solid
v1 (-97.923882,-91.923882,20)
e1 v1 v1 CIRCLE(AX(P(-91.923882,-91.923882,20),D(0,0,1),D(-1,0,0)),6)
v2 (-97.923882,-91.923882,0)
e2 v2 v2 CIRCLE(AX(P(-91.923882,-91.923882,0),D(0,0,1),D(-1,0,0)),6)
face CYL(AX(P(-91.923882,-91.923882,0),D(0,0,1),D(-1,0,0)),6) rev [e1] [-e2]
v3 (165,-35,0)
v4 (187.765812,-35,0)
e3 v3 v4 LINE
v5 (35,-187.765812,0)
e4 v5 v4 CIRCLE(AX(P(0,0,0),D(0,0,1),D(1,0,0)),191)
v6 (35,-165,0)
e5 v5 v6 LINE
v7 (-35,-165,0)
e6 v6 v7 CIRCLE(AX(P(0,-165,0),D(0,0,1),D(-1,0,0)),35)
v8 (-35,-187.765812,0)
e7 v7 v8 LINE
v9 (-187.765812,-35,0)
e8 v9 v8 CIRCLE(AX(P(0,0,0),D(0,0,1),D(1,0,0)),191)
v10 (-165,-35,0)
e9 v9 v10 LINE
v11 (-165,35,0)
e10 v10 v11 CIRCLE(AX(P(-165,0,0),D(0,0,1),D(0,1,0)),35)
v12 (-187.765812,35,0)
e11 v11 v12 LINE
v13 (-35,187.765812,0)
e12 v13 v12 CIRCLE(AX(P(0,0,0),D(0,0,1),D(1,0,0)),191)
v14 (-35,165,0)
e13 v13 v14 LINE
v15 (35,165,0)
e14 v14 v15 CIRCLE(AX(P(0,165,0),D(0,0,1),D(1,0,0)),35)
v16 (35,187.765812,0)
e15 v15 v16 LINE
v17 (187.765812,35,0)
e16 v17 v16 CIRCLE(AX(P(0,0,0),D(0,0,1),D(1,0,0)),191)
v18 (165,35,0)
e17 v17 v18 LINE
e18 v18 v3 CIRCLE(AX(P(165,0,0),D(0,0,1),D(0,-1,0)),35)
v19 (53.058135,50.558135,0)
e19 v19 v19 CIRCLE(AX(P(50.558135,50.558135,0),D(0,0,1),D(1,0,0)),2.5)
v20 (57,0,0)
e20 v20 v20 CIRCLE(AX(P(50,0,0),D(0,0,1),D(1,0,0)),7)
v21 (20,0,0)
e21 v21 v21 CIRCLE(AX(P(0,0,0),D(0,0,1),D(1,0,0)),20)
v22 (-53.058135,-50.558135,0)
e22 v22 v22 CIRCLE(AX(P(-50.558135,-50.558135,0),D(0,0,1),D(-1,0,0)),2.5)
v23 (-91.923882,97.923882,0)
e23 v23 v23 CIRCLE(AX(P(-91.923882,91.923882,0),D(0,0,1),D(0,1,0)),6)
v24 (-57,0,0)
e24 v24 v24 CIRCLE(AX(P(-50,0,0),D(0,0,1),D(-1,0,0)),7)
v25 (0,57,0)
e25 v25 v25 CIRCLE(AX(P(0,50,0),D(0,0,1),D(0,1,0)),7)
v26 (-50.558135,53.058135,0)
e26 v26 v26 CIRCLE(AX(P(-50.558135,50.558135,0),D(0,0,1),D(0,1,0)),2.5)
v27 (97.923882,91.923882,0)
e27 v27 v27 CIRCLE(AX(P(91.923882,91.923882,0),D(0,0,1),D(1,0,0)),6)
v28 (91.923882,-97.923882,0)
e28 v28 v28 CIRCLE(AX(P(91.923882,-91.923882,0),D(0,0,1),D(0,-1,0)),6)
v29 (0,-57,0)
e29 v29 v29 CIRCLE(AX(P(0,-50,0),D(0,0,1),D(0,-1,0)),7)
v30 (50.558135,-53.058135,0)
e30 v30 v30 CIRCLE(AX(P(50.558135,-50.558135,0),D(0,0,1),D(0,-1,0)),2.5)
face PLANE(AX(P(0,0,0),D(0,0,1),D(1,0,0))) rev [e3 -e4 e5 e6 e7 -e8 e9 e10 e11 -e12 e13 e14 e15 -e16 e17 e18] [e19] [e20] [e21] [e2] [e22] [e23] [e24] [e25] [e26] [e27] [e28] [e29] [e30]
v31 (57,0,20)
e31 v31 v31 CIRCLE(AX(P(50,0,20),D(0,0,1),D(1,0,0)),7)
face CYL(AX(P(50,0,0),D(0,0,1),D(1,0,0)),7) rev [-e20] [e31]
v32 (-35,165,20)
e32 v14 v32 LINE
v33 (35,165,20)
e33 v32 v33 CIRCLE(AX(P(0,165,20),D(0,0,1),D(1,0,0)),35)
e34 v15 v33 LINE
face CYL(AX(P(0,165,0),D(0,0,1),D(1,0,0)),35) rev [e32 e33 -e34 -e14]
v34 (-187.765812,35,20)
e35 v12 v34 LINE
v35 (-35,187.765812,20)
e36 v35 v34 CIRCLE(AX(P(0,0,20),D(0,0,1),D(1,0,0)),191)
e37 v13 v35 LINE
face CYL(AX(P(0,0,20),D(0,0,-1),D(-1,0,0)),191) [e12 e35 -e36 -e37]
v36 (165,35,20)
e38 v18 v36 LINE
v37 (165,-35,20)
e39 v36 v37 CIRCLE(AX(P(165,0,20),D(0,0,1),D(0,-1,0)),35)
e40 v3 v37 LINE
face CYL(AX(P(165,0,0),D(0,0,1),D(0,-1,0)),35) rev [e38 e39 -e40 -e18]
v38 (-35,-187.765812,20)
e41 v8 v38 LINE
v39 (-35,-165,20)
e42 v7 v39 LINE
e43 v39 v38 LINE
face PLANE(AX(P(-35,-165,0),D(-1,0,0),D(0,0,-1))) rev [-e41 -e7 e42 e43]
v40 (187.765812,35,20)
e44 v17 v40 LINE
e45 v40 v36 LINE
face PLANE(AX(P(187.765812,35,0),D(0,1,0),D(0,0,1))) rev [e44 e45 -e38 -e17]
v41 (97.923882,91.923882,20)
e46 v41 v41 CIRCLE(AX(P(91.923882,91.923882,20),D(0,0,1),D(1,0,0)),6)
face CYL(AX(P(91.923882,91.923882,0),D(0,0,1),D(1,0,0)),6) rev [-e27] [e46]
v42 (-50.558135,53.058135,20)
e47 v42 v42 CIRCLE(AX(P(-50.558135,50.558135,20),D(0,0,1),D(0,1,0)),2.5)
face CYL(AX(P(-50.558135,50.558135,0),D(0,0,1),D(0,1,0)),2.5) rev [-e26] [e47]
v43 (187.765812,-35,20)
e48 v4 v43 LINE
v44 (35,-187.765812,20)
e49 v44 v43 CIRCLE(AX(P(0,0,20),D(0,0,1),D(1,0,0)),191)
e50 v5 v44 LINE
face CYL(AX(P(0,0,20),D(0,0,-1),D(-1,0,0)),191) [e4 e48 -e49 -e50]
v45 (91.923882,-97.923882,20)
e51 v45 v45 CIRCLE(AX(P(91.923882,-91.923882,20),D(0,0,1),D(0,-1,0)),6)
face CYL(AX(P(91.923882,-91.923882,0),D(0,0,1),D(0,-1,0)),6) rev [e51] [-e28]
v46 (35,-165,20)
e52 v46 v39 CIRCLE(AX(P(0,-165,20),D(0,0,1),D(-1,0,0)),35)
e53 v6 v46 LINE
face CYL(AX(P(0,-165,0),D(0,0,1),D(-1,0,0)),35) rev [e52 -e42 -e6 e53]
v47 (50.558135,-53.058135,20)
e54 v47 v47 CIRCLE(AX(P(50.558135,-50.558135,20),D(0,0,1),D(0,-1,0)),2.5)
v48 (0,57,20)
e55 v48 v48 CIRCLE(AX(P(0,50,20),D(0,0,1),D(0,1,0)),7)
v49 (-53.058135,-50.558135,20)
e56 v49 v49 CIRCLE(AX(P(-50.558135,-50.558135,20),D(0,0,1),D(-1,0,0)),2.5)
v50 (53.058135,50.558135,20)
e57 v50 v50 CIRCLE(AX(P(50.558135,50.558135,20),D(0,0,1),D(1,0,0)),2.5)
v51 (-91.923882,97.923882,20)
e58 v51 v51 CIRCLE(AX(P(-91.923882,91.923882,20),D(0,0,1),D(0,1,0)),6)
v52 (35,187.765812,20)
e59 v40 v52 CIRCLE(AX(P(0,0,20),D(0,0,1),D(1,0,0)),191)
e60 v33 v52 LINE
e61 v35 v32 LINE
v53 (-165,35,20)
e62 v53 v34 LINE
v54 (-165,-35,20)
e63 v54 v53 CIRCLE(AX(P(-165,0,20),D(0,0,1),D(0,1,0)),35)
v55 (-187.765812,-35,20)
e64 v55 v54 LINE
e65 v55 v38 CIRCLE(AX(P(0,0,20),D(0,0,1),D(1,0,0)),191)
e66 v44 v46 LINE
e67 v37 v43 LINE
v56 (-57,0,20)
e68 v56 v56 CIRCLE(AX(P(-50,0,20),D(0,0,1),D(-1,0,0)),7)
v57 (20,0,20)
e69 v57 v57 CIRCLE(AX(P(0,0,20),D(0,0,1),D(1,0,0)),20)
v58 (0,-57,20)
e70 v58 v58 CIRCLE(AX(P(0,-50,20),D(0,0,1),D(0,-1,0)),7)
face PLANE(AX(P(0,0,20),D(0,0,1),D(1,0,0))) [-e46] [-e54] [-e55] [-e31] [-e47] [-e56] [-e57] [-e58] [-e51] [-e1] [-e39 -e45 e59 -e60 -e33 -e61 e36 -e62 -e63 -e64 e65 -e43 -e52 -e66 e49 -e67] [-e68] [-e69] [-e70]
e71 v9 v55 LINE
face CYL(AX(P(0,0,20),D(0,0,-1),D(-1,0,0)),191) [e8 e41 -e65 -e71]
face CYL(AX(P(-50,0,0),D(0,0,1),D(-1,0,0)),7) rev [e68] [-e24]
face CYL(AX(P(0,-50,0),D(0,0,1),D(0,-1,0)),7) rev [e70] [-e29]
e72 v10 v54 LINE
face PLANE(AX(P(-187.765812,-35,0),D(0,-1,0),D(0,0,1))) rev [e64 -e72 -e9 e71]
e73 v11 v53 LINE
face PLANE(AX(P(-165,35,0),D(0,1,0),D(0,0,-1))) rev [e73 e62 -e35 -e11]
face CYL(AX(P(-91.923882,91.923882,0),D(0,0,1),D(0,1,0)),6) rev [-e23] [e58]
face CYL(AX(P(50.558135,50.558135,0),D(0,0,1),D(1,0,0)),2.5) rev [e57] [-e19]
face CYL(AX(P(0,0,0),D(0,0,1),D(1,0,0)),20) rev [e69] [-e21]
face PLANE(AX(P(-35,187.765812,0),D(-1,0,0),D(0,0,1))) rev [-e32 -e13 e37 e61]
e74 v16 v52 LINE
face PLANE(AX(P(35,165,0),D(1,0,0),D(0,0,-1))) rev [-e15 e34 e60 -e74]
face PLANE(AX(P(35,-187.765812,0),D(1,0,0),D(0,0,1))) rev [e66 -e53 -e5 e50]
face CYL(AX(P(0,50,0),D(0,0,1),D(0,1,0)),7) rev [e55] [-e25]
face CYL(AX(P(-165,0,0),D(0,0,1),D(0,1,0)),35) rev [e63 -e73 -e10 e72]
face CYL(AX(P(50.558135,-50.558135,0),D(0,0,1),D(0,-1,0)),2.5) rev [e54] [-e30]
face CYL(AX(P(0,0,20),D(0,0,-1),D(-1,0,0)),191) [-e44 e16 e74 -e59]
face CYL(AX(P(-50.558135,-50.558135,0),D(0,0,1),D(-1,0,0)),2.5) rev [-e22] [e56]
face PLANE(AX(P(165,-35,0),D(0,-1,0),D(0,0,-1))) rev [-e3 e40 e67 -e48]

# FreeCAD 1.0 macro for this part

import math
import FreeCAD as App
import Part
import Sketcher

V = App.Vector

doc = App.newDocument("Part")
body = doc.addObject("PartDesign::Body", "Body")

sketch1 = doc.addObject("Sketcher::SketchObject", "Sketch")
body.addObject(sketch1)
sketch1.AttachmentSupport = (doc.XY_Plane, [""])
sketch1.MapMode = "FlatFace"
sketch1.addGeometry(Part.Circle(V(0, 0, 0), V(0, 0, 1), 191), False)
sketch1.addConstraint(Sketcher.Constraint("Coincident", 0, 3, -1, 1))
sketch1.addConstraint(Sketcher.Constraint("Diameter", 0, 382.0))
pad1 = doc.addObject("PartDesign::Pad", "Pad")
body.addObject(pad1)
pad1.Profile = sketch1
pad1.Length = 20

sketch2 = doc.addObject("Sketcher::SketchObject", "Sketch001")
body.addObject(sketch2)
sketch2.AttachmentSupport = (doc.XY_Plane, [""])
sketch2.MapMode = "FlatFace"
sketch2.AttachmentOffset = App.Placement(V(0, 0, 20), App.Rotation())
sketch2.addGeometry(Part.Circle(V(0, 0, 0), V(0, 0, 1), 20), False)
sketch2.addConstraint(Sketcher.Constraint("Coincident", 0, 3, -1, 1))
sketch2.addConstraint(Sketcher.Constraint("Diameter", 0, 40.0))
pocket1 = doc.addObject("PartDesign::Pocket", "Pocket")
body.addObject(pocket1)
pocket1.Profile = sketch2
pocket1.Length = 20

sketch3 = doc.addObject("Sketcher::SketchObject", "Sketch002")
body.addObject(sketch3)
sketch3.AttachmentSupport = (doc.XY_Plane, [""])
sketch3.MapMode = "FlatFace"
sketch3.AttachmentOffset = App.Placement(V(0, 0, 20), App.Rotation())
sketch3.addGeometry(Part.Circle(V(50, 0, 0), V(0, 0, 1), 7), False)
sketch3.addConstraint(Sketcher.Constraint("PointOnObject", 0, 3, -1))
sketch3.addConstraint(Sketcher.Constraint("Diameter", 0, 14.0))
sketch3.addConstraint(Sketcher.Constraint("DistanceX", -1, 1, 0, 3, 50.0))
pocket2 = doc.addObject("PartDesign::Pocket", "Pocket001")
body.addObject(pocket2)
pocket2.Profile = sketch3
pocket2.Length = 20
doc.recompute()

polarpattern = doc.addObject("PartDesign::PolarPattern", "PolarPattern")
body.addObject(polarpattern)
polarpattern.Originals = [pocket2]
polarpattern.Axis = (doc.Z_Axis, [""])
polarpattern.Angle = 360
polarpattern.Occurrences = 4
body.Tip = polarpattern

sketch4 = doc.addObject("Sketcher::SketchObject", "Sketch003")
body.addObject(sketch4)
sketch4.AttachmentSupport = (doc.XY_Plane, [""])
sketch4.MapMode = "FlatFace"
sketch4.AttachmentOffset = App.Placement(V(0, 0, 20), App.Rotation())
sketch4.addGeometry(Part.Circle(V(91.9, 91.9, 0), V(0, 0, 1), 6), False)
sketch4.addGeometry(Part.Circle(V(50.6, 50.6, 0), V(0, 0, 1), 2.5), False)
sketch4.addConstraint(Sketcher.Constraint("Diameter", 0, 12.0))
sketch4.addConstraint(Sketcher.Constraint("Diameter", 1, 5.0))
sketch4.addConstraint(Sketcher.Constraint("DistanceX", -1, 1, 0, 3, 91.923882))
sketch4.addConstraint(Sketcher.Constraint("DistanceY", -1, 1, 0, 3, 91.923882))
sketch4.addConstraint(Sketcher.Constraint("DistanceX", -1, 1, 1, 3, 50.558135))
sketch4.addConstraint(Sketcher.Constraint("DistanceY", -1, 1, 1, 3, 50.558135))
pocket3 = doc.addObject("PartDesign::Pocket", "Pocket002")
body.addObject(pocket3)
pocket3.Profile = sketch4
pocket3.Length = 20
doc.recompute()

polarpattern2 = doc.addObject("PartDesign::PolarPattern", "PolarPattern001")
body.addObject(polarpattern2)
polarpattern2.Originals = [pocket3]
polarpattern2.Axis = (doc.Z_Axis, [""])
polarpattern2.Angle = 360
polarpattern2.Occurrences = 4
body.Tip = polarpattern2

sketch5 = doc.addObject("Sketcher::SketchObject", "Sketch004")
body.addObject(sketch5)
sketch5.AttachmentSupport = (doc.XY_Plane, [""])
sketch5.MapMode = "FlatFace"
sketch5.AttachmentOffset = App.Placement(V(0, 0, 20), App.Rotation())
sketch5.addGeometry(Part.LineSegment(V(-35, 188, 0), V(-35, 165, 0)), False)
sketch5.addGeometry(Part.ArcOfCircle(Part.Circle(V(0, 165, 0), V(0, 0, 1), 35), math.radians(180), math.radians(360)), False)
sketch5.addGeometry(Part.LineSegment(V(35, 165, 0), V(35, 188, 0)), False)
sketch5.addGeometry(Part.ArcOfCircle(Part.Circle(V(0, 0, 0), V(0, 0, 1), 191), math.radians(79), math.radians(101)), False)
sketch5.addConstraint(Sketcher.Constraint("Tangent", 0, 2, 1, 1))
sketch5.addConstraint(Sketcher.Constraint("Tangent", 1, 2, 2, 1))
sketch5.addConstraint(Sketcher.Constraint("Coincident", 2, 2, 3, 1))
sketch5.addConstraint(Sketcher.Constraint("Coincident", 3, 2, 0, 1))
sketch5.addConstraint(Sketcher.Constraint("Vertical", 0))
sketch5.addConstraint(Sketcher.Constraint("Vertical", 2))
sketch5.addConstraint(Sketcher.Constraint("Coincident", 3, 3, -1, 1))
sketch5.addConstraint(Sketcher.Constraint("PointOnObject", 1, 3, -2))
sketch5.addConstraint(Sketcher.Constraint("Radius", 1, 35.0))
sketch5.addConstraint(Sketcher.Constraint("Radius", 3, 191.0))
sketch5.addConstraint(Sketcher.Constraint("DistanceY", -1, 1, 1, 3, 165.0))
pocket4 = doc.addObject("PartDesign::Pocket", "Pocket003")
body.addObject(pocket4)
pocket4.Profile = sketch5
pocket4.Type = "ThroughAll"
doc.recompute()

polarpattern3 = doc.addObject("PartDesign::PolarPattern", "PolarPattern002")
body.addObject(polarpattern3)
polarpattern3.Originals = [pocket4]
polarpattern3.Axis = (doc.Z_Axis, [""])
polarpattern3.Angle = 360
polarpattern3.Occurrences = 4
body.Tip = polarpattern3

doc.recompute()
